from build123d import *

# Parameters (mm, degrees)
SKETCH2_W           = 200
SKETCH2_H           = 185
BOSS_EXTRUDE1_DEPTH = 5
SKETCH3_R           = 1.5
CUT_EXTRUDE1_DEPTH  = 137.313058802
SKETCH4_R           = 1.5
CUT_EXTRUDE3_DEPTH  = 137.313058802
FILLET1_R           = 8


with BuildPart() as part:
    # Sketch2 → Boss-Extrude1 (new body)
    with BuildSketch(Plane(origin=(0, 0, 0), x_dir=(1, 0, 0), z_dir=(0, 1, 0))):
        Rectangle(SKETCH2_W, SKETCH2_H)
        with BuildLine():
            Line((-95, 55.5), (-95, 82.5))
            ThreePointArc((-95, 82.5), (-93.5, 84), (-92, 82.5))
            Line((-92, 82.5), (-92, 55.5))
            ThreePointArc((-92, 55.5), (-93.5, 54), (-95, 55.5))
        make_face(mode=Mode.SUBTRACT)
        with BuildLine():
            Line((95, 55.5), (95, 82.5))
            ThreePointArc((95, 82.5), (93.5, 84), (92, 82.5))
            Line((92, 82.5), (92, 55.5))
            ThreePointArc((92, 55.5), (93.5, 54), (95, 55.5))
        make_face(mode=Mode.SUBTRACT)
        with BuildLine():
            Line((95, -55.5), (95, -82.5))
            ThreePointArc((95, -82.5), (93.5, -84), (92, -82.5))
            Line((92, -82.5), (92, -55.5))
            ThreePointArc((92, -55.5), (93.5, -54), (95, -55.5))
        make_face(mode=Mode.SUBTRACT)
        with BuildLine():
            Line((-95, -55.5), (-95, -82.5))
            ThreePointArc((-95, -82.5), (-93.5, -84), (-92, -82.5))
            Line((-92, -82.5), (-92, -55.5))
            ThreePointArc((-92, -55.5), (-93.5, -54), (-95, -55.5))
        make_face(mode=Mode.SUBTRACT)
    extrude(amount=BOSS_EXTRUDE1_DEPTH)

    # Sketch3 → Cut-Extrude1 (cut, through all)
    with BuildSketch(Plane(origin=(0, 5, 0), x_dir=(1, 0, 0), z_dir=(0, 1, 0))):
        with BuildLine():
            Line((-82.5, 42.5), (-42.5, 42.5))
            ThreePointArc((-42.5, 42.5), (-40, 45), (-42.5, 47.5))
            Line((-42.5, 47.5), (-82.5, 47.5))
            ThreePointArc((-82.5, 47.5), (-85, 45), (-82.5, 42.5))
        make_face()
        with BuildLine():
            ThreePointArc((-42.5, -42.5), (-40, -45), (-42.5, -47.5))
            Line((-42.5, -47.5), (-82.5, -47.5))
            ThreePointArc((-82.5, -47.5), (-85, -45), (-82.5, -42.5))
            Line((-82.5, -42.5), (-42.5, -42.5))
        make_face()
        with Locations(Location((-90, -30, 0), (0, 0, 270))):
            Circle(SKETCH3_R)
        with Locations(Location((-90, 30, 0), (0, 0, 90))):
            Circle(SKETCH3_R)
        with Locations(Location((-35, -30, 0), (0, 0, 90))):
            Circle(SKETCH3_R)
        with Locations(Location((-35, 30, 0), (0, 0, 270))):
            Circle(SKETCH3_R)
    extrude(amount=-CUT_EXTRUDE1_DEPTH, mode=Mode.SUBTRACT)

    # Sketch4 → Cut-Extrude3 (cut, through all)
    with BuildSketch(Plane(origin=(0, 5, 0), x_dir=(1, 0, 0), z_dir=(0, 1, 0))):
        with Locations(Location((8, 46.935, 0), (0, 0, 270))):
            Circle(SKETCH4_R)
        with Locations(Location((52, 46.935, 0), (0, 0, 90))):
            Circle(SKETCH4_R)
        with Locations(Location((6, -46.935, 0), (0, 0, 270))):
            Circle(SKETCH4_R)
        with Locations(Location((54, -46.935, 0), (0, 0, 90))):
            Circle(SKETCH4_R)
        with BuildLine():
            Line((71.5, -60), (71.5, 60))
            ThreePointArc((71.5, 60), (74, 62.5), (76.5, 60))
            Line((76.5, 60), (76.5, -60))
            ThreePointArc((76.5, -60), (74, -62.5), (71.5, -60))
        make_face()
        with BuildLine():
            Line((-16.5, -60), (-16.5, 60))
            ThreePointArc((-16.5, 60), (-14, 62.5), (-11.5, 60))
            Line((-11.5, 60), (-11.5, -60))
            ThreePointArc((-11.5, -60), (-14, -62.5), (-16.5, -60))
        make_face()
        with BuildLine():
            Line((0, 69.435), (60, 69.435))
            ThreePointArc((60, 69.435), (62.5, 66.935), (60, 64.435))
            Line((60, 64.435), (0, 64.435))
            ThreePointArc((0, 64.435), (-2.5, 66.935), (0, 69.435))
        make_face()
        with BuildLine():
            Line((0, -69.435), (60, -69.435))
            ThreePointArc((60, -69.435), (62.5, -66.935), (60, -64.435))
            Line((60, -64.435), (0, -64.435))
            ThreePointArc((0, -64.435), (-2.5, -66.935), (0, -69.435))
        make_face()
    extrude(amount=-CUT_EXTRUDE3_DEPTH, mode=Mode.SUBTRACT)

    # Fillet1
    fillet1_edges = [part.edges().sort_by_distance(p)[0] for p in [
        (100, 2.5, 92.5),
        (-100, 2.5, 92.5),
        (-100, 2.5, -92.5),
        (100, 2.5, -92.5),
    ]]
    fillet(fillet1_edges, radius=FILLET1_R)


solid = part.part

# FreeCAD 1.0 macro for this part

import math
import FreeCAD as App
import Part
import Sketcher

V = App.Vector


def edges_at(feature, points):
    """Names of the edges that pass closest to the given points."""
    edges = feature.Shape.Edges
    near = lambda p: min(range(len(edges)), key=lambda i: edges[i].distToShape(Part.Vertex(*p))[0])
    return sorted({f"Edge{near(p) + 1}" for p in points})


def add_polygon(sketch, points):
    """Adds a closed chain of lines whose ends are joined by coincident constraints."""
    first, n = sketch.GeometryCount, len(points)
    for a, b in zip(points, points[1:] + points[:1]):
        sketch.addGeometry(Part.LineSegment(App.Vector(*a, 0), App.Vector(*b, 0)), False)
    for i in range(n):
        sketch.addConstraint(Sketcher.Constraint("Coincident", first + i, 2, first + (i + 1) % n, 1))

doc = App.newDocument("Part")
params = doc.addObject("Spreadsheet::Sheet", "Params")
for row, (alias, value) in enumerate([
    ("sketch1_radius", "1.5 mm"),
    ("sketch1_width", "200 mm"),
    ("sketch1_height", "185 mm"),
    ("sketch1_height2", "27 mm"),
    ("pad1_length", "5 mm"),
    ("sketch2_diameter", "3 mm"),
    ("sketch2_radius", "2.5 mm"),
    ("sketch2_width", "40 mm"),
    ("sketch3_diameter", "3 mm"),
    ("sketch3_radius", "2.5 mm"),
    ("sketch3_width", "60 mm"),
    ("sketch3_height", "120 mm"),
    ("fillet_radius", "8 mm"),
], start=1):
    params.set(f"A{row}", alias)
    params.set(f"B{row}", "=" + value)
    params.setAlias(f"B{row}", alias)

body = doc.addObject("PartDesign::Body", "Body")

sketch1 = body.newObject("Sketcher::SketchObject", "Sketch")
sketch1.AttachmentSupport = (doc.getObject("XZ_Plane"), [""])
sketch1.MapMode = "FlatFace"
add_polygon(sketch1, [(-100, -92.5), (-100, 92.5), (100, 92.5), (100, -92.5)])
sketch1.addGeometry(Part.LineSegment(V(-95, 82.5, 0), V(-95, 55.5, 0)), False)
sketch1.addGeometry(Part.ArcOfCircle(Part.Circle(V(-93.5, 55.5, 0), V(0, 0, 1), 1.5), math.radians(180), math.radians(360)), False)
sketch1.addGeometry(Part.LineSegment(V(-92, 55.5, 0), V(-92, 82.5, 0)), False)
sketch1.addGeometry(Part.ArcOfCircle(Part.Circle(V(-93.5, 82.5, 0), V(0, 0, 1), 1.5), math.radians(0), math.radians(180)), False)
sketch1.addGeometry(Part.ArcOfCircle(Part.Circle(V(93.5, 55.5, 0), V(0, 0, 1), 1.5), math.radians(180), math.radians(360)), False)
sketch1.addGeometry(Part.LineSegment(V(95, 55.5, 0), V(95, 82.5, 0)), False)
sketch1.addGeometry(Part.ArcOfCircle(Part.Circle(V(93.5, 82.5, 0), V(0, 0, 1), 1.5), math.radians(0), math.radians(180)), False)
sketch1.addGeometry(Part.LineSegment(V(92, 82.5, 0), V(92, 55.5, 0)), False)
sketch1.addGeometry(Part.ArcOfCircle(Part.Circle(V(-93.5, -55.5, 0), V(0, 0, 1), 1.5), math.radians(0), math.radians(180)), False)
sketch1.addGeometry(Part.LineSegment(V(-95, -55.5, 0), V(-95, -82.5, 0)), False)
sketch1.addGeometry(Part.ArcOfCircle(Part.Circle(V(-93.5, -82.5, 0), V(0, 0, 1), 1.5), math.radians(180), math.radians(360)), False)
sketch1.addGeometry(Part.LineSegment(V(-92, -82.5, 0), V(-92, -55.5, 0)), False)
sketch1.addGeometry(Part.LineSegment(V(95, -82.5, 0), V(95, -55.5, 0)), False)
sketch1.addGeometry(Part.ArcOfCircle(Part.Circle(V(93.5, -55.5, 0), V(0, 0, 1), 1.5), math.radians(0), math.radians(180)), False)
sketch1.addGeometry(Part.LineSegment(V(92, -55.5, 0), V(92, -82.5, 0)), False)
sketch1.addGeometry(Part.ArcOfCircle(Part.Circle(V(93.5, -82.5, 0), V(0, 0, 1), 1.5), math.radians(180), math.radians(360)), False)
sketch1.addConstraint(Sketcher.Constraint("Tangent", 4, 2, 5, 1))
sketch1.addConstraint(Sketcher.Constraint("Tangent", 5, 2, 6, 1))
sketch1.addConstraint(Sketcher.Constraint("Tangent", 6, 2, 7, 1))
sketch1.addConstraint(Sketcher.Constraint("Tangent", 7, 2, 4, 1))
sketch1.addConstraint(Sketcher.Constraint("Tangent", 8, 2, 9, 1))
sketch1.addConstraint(Sketcher.Constraint("Tangent", 9, 2, 10, 1))
sketch1.addConstraint(Sketcher.Constraint("Tangent", 10, 2, 11, 1))
sketch1.addConstraint(Sketcher.Constraint("Tangent", 11, 2, 8, 1))
sketch1.addConstraint(Sketcher.Constraint("Tangent", 12, 2, 13, 1))
sketch1.addConstraint(Sketcher.Constraint("Tangent", 13, 2, 14, 1))
sketch1.addConstraint(Sketcher.Constraint("Tangent", 14, 2, 15, 1))
sketch1.addConstraint(Sketcher.Constraint("Tangent", 15, 2, 12, 1))
sketch1.addConstraint(Sketcher.Constraint("Tangent", 16, 2, 17, 1))
sketch1.addConstraint(Sketcher.Constraint("Tangent", 17, 2, 18, 1))
sketch1.addConstraint(Sketcher.Constraint("Tangent", 18, 2, 19, 1))
sketch1.addConstraint(Sketcher.Constraint("Tangent", 19, 2, 16, 1))
sketch1.addConstraint(Sketcher.Constraint("Vertical", 0))
sketch1.addConstraint(Sketcher.Constraint("Horizontal", 1))
sketch1.addConstraint(Sketcher.Constraint("Vertical", 2))
sketch1.addConstraint(Sketcher.Constraint("Horizontal", 3))
sketch1.addConstraint(Sketcher.Constraint("Vertical", 4))
sketch1.addConstraint(Sketcher.Constraint("Vertical", 6))
sketch1.addConstraint(Sketcher.Constraint("Vertical", 9))
sketch1.addConstraint(Sketcher.Constraint("Vertical", 11))
sketch1.addConstraint(Sketcher.Constraint("Vertical", 13))
sketch1.addConstraint(Sketcher.Constraint("Vertical", 15))
sketch1.addConstraint(Sketcher.Constraint("Vertical", 16))
sketch1.addConstraint(Sketcher.Constraint("Vertical", 18))
sketch1.addConstraint(Sketcher.Constraint("Equal", 7, 8))
sketch1.addConstraint(Sketcher.Constraint("Equal", 10, 12))
sketch1.addConstraint(Sketcher.Constraint("Equal", 14, 17))
sketch1.addConstraint(Sketcher.Constraint("Symmetric", 8, 3, 12, 3, -1, 1))
sketch1.addConstraint(Sketcher.Constraint("Symmetric", 5, 3, 17, 3, -1, 1))
sketch1.addConstraint(Sketcher.Constraint("Symmetric", 0, 2, 2, 2, -1, 1))
sketch1.addConstraint(Sketcher.Constraint("Symmetric", 5, 3, 8, 3, -2))
sketch1.addConstraint(Sketcher.Constraint("Horizontal", 7, 3, 10, 3))
sketch1.addConstraint(Sketcher.Constraint("Horizontal", 14, 3, 19, 3))
sketch1.addConstraint(Sketcher.Constraint("Equal", 11, 13))
sketch1.addConstraint(Sketcher.Constraint("Radius", 5, 1.5))
sketch1.addConstraint(Sketcher.Constraint("DistanceX", 1, 1, 1, 2, 200.0))
sketch1.addConstraint(Sketcher.Constraint("DistanceY", 0, 1, 0, 2, 185.0))
sketch1.addConstraint(Sketcher.Constraint("DistanceY", 4, 2, 4, 1, 27.0))
sketch1.addConstraint(Sketcher.Constraint("DistanceX", 4, 2, -1, 1, 95.0))
sketch1.addConstraint(Sketcher.Constraint("DistanceY", 12, 3, 5, 3, 111.0))
sketch1.setExpression("Constraints[42]", "Params.sketch1_radius")
sketch1.setExpression("Constraints[43]", "Params.sketch1_width")
sketch1.setExpression("Constraints[44]", "Params.sketch1_height")
sketch1.setExpression("Constraints[45]", "Params.sketch1_height2")
pad1 = body.newObject("PartDesign::Pad", "Pad")
pad1.Profile = sketch1
pad1.setExpression("Length", "Params.pad1_length")
pad1.Reversed = True

sketch2 = body.newObject("Sketcher::SketchObject", "Sketch001")
sketch2.AttachmentSupport = (doc.getObject("XZ_Plane"), [""])
sketch2.MapMode = "FlatFace"
sketch2.AttachmentOffset = App.Placement(V(0, 0, -5), App.Rotation())
sketch2.addGeometry(Part.LineSegment(V(-82.5, -42.5, 0), V(-42.5, -42.5, 0)), False)
sketch2.addGeometry(Part.ArcOfCircle(Part.Circle(V(-42.5, -45, 0), V(0, 0, 1), 2.5), math.radians(-90), math.radians(90)), False)
sketch2.addGeometry(Part.LineSegment(V(-42.5, -47.5, 0), V(-82.5, -47.5, 0)), False)
sketch2.addGeometry(Part.ArcOfCircle(Part.Circle(V(-82.5, -45, 0), V(0, 0, 1), 2.5), math.radians(90), math.radians(270)), False)
sketch2.addGeometry(Part.ArcOfCircle(Part.Circle(V(-42.5, 45, 0), V(0, 0, 1), 2.5), math.radians(-90), math.radians(90)), False)
sketch2.addGeometry(Part.LineSegment(V(-42.5, 42.5, 0), V(-82.5, 42.5, 0)), False)
sketch2.addGeometry(Part.ArcOfCircle(Part.Circle(V(-82.5, 45, 0), V(0, 0, 1), 2.5), math.radians(90), math.radians(270)), False)
sketch2.addGeometry(Part.LineSegment(V(-82.5, 47.5, 0), V(-42.5, 47.5, 0)), False)
sketch2.addGeometry(Part.Circle(V(-90, 30, 0), V(0, 0, 1), 1.5), False)
sketch2.addGeometry(Part.Circle(V(-90, -30, 0), V(0, 0, 1), 1.5), False)
sketch2.addGeometry(Part.Circle(V(-35, 30, 0), V(0, 0, 1), 1.5), False)
sketch2.addGeometry(Part.Circle(V(-35, -30, 0), V(0, 0, 1), 1.5), False)
sketch2.addConstraint(Sketcher.Constraint("Tangent", 0, 2, 1, 2))
sketch2.addConstraint(Sketcher.Constraint("Tangent", 1, 1, 2, 1))
sketch2.addConstraint(Sketcher.Constraint("Tangent", 2, 2, 3, 2))
sketch2.addConstraint(Sketcher.Constraint("Tangent", 3, 1, 0, 1))
sketch2.addConstraint(Sketcher.Constraint("Tangent", 4, 1, 5, 1))
sketch2.addConstraint(Sketcher.Constraint("Tangent", 5, 2, 6, 2))
sketch2.addConstraint(Sketcher.Constraint("Tangent", 6, 1, 7, 1))
sketch2.addConstraint(Sketcher.Constraint("Tangent", 7, 2, 4, 2))
sketch2.addConstraint(Sketcher.Constraint("Horizontal", 0))
sketch2.addConstraint(Sketcher.Constraint("Horizontal", 2))
sketch2.addConstraint(Sketcher.Constraint("Horizontal", 5))
sketch2.addConstraint(Sketcher.Constraint("Horizontal", 7))
sketch2.addConstraint(Sketcher.Constraint("Equal", 3, 4))
sketch2.addConstraint(Sketcher.Constraint("Equal", 8, 9))
sketch2.addConstraint(Sketcher.Constraint("Equal", 9, 10))
sketch2.addConstraint(Sketcher.Constraint("Equal", 10, 11))
sketch2.addConstraint(Sketcher.Constraint("Symmetric", 1, 3, 4, 3, -1))
sketch2.addConstraint(Sketcher.Constraint("Symmetric", 8, 3, 9, 3, -1))
sketch2.addConstraint(Sketcher.Constraint("Symmetric", 10, 3, 11, 3, -1))
sketch2.addConstraint(Sketcher.Constraint("Horizontal", 8, 3, 10, 3))
sketch2.addConstraint(Sketcher.Constraint("Vertical", 3, 3, 6, 3))
sketch2.addConstraint(Sketcher.Constraint("Diameter", 8, 3.0))
sketch2.addConstraint(Sketcher.Constraint("Radius", 1, 2.5))
sketch2.addConstraint(Sketcher.Constraint("DistanceX", 0, 1, 0, 2, 40.0))
sketch2.addConstraint(Sketcher.Constraint("DistanceY", 1, 3, -1, 1, 45.0))
sketch2.addConstraint(Sketcher.Constraint("DistanceX", 8, 3, -1, 1, 90.0))
sketch2.addConstraint(Sketcher.Constraint("DistanceY", -1, 1, 8, 3, 30.0))
sketch2.addConstraint(Sketcher.Constraint("DistanceX", 10, 3, -1, 1, 35.0))
sketch2.addConstraint(Sketcher.Constraint("DistanceX", 1, 3, -1, 1, 42.5))
sketch2.setExpression("Constraints[21]", "Params.sketch2_diameter")
sketch2.setExpression("Constraints[22]", "Params.sketch2_radius")
sketch2.setExpression("Constraints[23]", "Params.sketch2_width")
pocket1 = body.newObject("PartDesign::Pocket", "Pocket")
pocket1.Profile = sketch2
pocket1.Type = "ThroughAll"
pocket1.Reversed = True

sketch3 = body.newObject("Sketcher::SketchObject", "Sketch002")
sketch3.AttachmentSupport = (doc.getObject("XZ_Plane"), [""])
sketch3.MapMode = "FlatFace"
sketch3.AttachmentOffset = App.Placement(V(0, 0, -5), App.Rotation())
sketch3.addGeometry(Part.Circle(V(8, -46.9, 0), V(0, 0, 1), 1.5), False)
sketch3.addGeometry(Part.Circle(V(52, -46.9, 0), V(0, 0, 1), 1.5), False)
sketch3.addGeometry(Part.Circle(V(6, 46.9, 0), V(0, 0, 1), 1.5), False)
sketch3.addGeometry(Part.Circle(V(54, 46.9, 0), V(0, 0, 1), 1.5), False)
sketch3.addGeometry(Part.LineSegment(V(71.5, -60, 0), V(71.5, 60, 0)), False)
sketch3.addGeometry(Part.ArcOfCircle(Part.Circle(V(74, 60, 0), V(0, 0, 1), 2.5), math.radians(0), math.radians(180)), False)
sketch3.addGeometry(Part.LineSegment(V(76.5, 60, 0), V(76.5, -60, 0)), False)
sketch3.addGeometry(Part.ArcOfCircle(Part.Circle(V(74, -60, 0), V(0, 0, 1), 2.5), math.radians(180), math.radians(360)), False)
sketch3.addGeometry(Part.LineSegment(V(-16.5, -60, 0), V(-16.5, 60, 0)), False)
sketch3.addGeometry(Part.ArcOfCircle(Part.Circle(V(-14, 60, 0), V(0, 0, 1), 2.5), math.radians(0), math.radians(180)), False)
sketch3.addGeometry(Part.LineSegment(V(-11.5, 60, 0), V(-11.5, -60, 0)), False)
sketch3.addGeometry(Part.ArcOfCircle(Part.Circle(V(-14, -60, 0), V(0, 0, 1), 2.5), math.radians(180), math.radians(360)), False)
sketch3.addGeometry(Part.LineSegment(V(60, -69.4, 0), V(0, -69.4, 0)), False)
sketch3.addGeometry(Part.ArcOfCircle(Part.Circle(V(0, -66.9, 0), V(0, 0, 1), 2.5), math.radians(90), math.radians(270)), False)
sketch3.addGeometry(Part.LineSegment(V(0, -64.4, 0), V(60, -64.4, 0)), False)
sketch3.addGeometry(Part.ArcOfCircle(Part.Circle(V(60, -66.9, 0), V(0, 0, 1), 2.5), math.radians(-90), math.radians(90)), False)
sketch3.addGeometry(Part.LineSegment(V(0, 69.4, 0), V(60, 69.4, 0)), False)
sketch3.addGeometry(Part.ArcOfCircle(Part.Circle(V(60, 66.9, 0), V(0, 0, 1), 2.5), math.radians(-90), math.radians(90)), False)
sketch3.addGeometry(Part.LineSegment(V(60, 64.4, 0), V(0, 64.4, 0)), False)
sketch3.addGeometry(Part.ArcOfCircle(Part.Circle(V(0, 66.9, 0), V(0, 0, 1), 2.5), math.radians(90), math.radians(270)), False)
sketch3.addConstraint(Sketcher.Constraint("Tangent", 4, 2, 5, 2))
sketch3.addConstraint(Sketcher.Constraint("Tangent", 5, 1, 6, 1))
sketch3.addConstraint(Sketcher.Constraint("Tangent", 6, 2, 7, 2))
sketch3.addConstraint(Sketcher.Constraint("Tangent", 7, 1, 4, 1))
sketch3.addConstraint(Sketcher.Constraint("Tangent", 8, 2, 9, 2))
sketch3.addConstraint(Sketcher.Constraint("Tangent", 9, 1, 10, 1))
sketch3.addConstraint(Sketcher.Constraint("Tangent", 10, 2, 11, 2))
sketch3.addConstraint(Sketcher.Constraint("Tangent", 11, 1, 8, 1))
sketch3.addConstraint(Sketcher.Constraint("Tangent", 12, 2, 13, 2))
sketch3.addConstraint(Sketcher.Constraint("Tangent", 13, 1, 14, 1))
sketch3.addConstraint(Sketcher.Constraint("Tangent", 14, 2, 15, 2))
sketch3.addConstraint(Sketcher.Constraint("Tangent", 15, 1, 12, 1))
sketch3.addConstraint(Sketcher.Constraint("Tangent", 16, 2, 17, 2))
sketch3.addConstraint(Sketcher.Constraint("Tangent", 17, 1, 18, 1))
sketch3.addConstraint(Sketcher.Constraint("Tangent", 18, 2, 19, 2))
sketch3.addConstraint(Sketcher.Constraint("Tangent", 19, 1, 16, 1))
sketch3.addConstraint(Sketcher.Constraint("Vertical", 4))
sketch3.addConstraint(Sketcher.Constraint("Vertical", 6))
sketch3.addConstraint(Sketcher.Constraint("Vertical", 8))
sketch3.addConstraint(Sketcher.Constraint("Vertical", 10))
sketch3.addConstraint(Sketcher.Constraint("Horizontal", 12))
sketch3.addConstraint(Sketcher.Constraint("Horizontal", 14))
sketch3.addConstraint(Sketcher.Constraint("Horizontal", 16))
sketch3.addConstraint(Sketcher.Constraint("Horizontal", 18))
sketch3.addConstraint(Sketcher.Constraint("Equal", 0, 1))
sketch3.addConstraint(Sketcher.Constraint("Equal", 1, 2))
sketch3.addConstraint(Sketcher.Constraint("Equal", 2, 3))
sketch3.addConstraint(Sketcher.Constraint("Equal", 7, 9))
sketch3.addConstraint(Sketcher.Constraint("Equal", 11, 13))
sketch3.addConstraint(Sketcher.Constraint("Equal", 15, 17))
sketch3.addConstraint(Sketcher.Constraint("Symmetric", 13, 3, 19, 3, -1, 1))
sketch3.addConstraint(Sketcher.Constraint("PointOnObject", 13, 3, -2))
sketch3.addConstraint(Sketcher.Constraint("Horizontal", 0, 3, 1, 3))
sketch3.addConstraint(Sketcher.Constraint("Horizontal", 2, 3, 3, 3))
sketch3.addConstraint(Sketcher.Constraint("Horizontal", 5, 3, 9, 3))
sketch3.addConstraint(Sketcher.Constraint("Horizontal", 7, 3, 11, 3))
sketch3.addConstraint(Sketcher.Constraint("Vertical", 15, 3, 17, 3))
sketch3.addConstraint(Sketcher.Constraint("Diameter", 0, 3.0))
sketch3.addConstraint(Sketcher.Constraint("Radius", 5, 2.5))
sketch3.addConstraint(Sketcher.Constraint("DistanceX", 12, 2, 12, 1, 60.0))
sketch3.addConstraint(Sketcher.Constraint("DistanceY", 4, 1, 4, 2, 120.0))
sketch3.addConstraint(Sketcher.Constraint("DistanceX", -1, 1, 0, 3, 8.0))
sketch3.addConstraint(Sketcher.Constraint("DistanceX", -1, 1, 1, 3, 52.0))
sketch3.addConstraint(Sketcher.Constraint("DistanceX", -1, 1, 2, 3, 6.0))
sketch3.addConstraint(Sketcher.Constraint("DistanceX", -1, 1, 3, 3, 54.0))
sketch3.addConstraint(Sketcher.Constraint("DistanceX", -1, 1, 5, 3, 74.0))
sketch3.addConstraint(Sketcher.Constraint("DistanceY", -1, 1, 5, 3, 60.0))
sketch3.addConstraint(Sketcher.Constraint("DistanceX", 9, 3, -1, 1, 14.0))
sketch3.addConstraint(Sketcher.Constraint("DistanceY", 13, 3, 0, 3, 20.0))
sketch3.addConstraint(Sketcher.Constraint("DistanceY", 3, 3, 17, 3, 20.0))
sketch3.addConstraint(Sketcher.Constraint("DistanceY", 0, 3, 2, 3, 93.87))
sketch3.setExpression("Constraints[37]", "Params.sketch3_diameter")
sketch3.setExpression("Constraints[38]", "Params.sketch3_radius")
sketch3.setExpression("Constraints[39]", "Params.sketch3_width")
sketch3.setExpression("Constraints[40]", "Params.sketch3_height")
pocket2 = body.newObject("PartDesign::Pocket", "Pocket001")
pocket2.Profile = sketch3
pocket2.Type = "ThroughAll"
pocket2.Reversed = True
doc.recompute()

fillet = body.newObject("PartDesign::Fillet", "Fillet")
fillet.Base = (pocket2, edges_at(pocket2, [
    (100, 2.5, 92.5),
    (-100, 2.5, 92.5),
    (-100, 2.5, -92.5),
    (100, 2.5, -92.5),
]))
fillet.setExpression("Radius", "Params.fillet_radius")

doc.recompute()
